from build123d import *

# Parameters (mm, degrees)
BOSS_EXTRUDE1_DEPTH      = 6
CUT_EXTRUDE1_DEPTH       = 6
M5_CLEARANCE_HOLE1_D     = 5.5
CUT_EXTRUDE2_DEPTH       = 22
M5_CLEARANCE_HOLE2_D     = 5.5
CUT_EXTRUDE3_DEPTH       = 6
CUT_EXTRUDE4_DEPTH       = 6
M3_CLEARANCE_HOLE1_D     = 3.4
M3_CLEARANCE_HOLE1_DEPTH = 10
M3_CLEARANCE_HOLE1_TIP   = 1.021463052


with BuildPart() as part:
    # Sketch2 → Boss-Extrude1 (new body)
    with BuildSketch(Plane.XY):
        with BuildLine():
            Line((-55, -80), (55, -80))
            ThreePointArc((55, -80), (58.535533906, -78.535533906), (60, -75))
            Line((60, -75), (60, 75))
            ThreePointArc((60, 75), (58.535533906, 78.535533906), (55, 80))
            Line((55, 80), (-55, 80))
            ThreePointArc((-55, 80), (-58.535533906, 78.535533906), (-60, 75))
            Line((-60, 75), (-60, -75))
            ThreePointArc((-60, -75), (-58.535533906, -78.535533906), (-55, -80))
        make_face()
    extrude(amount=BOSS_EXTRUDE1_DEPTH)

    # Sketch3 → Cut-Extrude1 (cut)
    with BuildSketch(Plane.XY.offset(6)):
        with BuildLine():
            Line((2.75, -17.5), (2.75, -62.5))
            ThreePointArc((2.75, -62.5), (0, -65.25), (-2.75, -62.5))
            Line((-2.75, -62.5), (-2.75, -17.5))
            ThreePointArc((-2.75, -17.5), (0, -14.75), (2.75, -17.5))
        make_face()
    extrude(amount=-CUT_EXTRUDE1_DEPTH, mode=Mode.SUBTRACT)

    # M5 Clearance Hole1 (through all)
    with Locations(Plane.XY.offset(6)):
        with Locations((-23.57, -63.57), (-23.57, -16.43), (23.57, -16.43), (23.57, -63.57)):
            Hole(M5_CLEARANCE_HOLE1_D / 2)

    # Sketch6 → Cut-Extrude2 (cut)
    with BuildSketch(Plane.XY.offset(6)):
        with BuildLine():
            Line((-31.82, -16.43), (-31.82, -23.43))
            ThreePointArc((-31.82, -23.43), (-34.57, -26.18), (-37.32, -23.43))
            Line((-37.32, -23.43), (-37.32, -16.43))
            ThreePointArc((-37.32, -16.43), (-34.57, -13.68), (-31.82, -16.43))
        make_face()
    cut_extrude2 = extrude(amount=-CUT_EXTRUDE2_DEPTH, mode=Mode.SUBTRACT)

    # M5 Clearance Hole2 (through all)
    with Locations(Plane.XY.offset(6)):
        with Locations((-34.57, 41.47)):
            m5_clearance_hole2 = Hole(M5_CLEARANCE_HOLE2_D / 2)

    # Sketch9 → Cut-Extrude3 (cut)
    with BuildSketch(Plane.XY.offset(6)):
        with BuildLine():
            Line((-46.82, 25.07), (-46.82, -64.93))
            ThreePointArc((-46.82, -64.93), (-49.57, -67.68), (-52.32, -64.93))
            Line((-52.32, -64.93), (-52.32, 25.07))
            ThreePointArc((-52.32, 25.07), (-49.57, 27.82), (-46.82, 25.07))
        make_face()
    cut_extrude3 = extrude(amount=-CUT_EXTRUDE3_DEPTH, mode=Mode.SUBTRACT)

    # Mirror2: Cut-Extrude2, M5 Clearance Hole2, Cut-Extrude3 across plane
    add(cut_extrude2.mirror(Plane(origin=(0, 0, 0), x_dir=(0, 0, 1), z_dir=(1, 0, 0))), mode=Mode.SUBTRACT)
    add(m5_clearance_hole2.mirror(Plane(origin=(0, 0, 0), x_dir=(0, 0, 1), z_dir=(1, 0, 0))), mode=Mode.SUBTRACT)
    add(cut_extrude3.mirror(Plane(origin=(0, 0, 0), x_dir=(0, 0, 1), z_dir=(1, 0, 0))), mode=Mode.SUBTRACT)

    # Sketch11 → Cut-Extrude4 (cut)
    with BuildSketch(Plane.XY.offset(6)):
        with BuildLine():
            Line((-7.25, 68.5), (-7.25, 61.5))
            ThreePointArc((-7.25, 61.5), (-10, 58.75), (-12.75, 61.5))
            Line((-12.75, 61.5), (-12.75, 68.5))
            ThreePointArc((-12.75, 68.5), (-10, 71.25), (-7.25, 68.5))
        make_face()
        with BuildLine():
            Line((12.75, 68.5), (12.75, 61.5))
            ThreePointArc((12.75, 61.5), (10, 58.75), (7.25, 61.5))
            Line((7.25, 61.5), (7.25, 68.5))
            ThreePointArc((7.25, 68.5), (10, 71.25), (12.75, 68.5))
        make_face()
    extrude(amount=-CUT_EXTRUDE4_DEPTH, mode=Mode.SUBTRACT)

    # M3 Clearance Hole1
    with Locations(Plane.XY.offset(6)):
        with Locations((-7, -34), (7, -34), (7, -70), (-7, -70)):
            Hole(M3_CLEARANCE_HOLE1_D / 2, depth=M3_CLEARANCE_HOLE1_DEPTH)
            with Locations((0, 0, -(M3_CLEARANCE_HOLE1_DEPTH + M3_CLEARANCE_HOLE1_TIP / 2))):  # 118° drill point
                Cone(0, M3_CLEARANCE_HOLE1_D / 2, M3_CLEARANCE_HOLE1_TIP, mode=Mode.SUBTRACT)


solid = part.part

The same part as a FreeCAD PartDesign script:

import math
import FreeCAD as App
import Part
import Sketcher

V = App.Vector

doc = App.newDocument("Part")
body = doc.addObject("PartDesign::Body", "Body")

# Sketch on XY plane
sketch1 = doc.addObject("Sketcher::SketchObject", "Sketch")
body.addObject(sketch1)
sketch1.AttachmentSupport = (doc.XY_Plane, [""])
sketch1.MapMode = "FlatFace"
sketch1.addGeometry([
    Part.LineSegment(V(-55, -80, 0), V(55, -80, 0)),  # 0
    Part.ArcOfCircle(Part.Circle(V(55, -75, 0), V(0, 0, 1), 5), math.radians(-90), math.radians(0)),  # 1
    Part.LineSegment(V(60, -75, 0), V(60, 75, 0)),  # 2
    Part.ArcOfCircle(Part.Circle(V(55, 75, 0), V(0, 0, 1), 5), math.radians(0), math.radians(90)),  # 3
    Part.LineSegment(V(55, 80, 0), V(-55, 80, 0)),  # 4
    Part.ArcOfCircle(Part.Circle(V(-55, 75, 0), V(0, 0, 1), 5), math.radians(90), math.radians(180)),  # 5
    Part.LineSegment(V(-60, 75, 0), V(-60, -75, 0)),  # 6
    Part.ArcOfCircle(Part.Circle(V(-55, -75, 0), V(0, 0, 1), 5), math.radians(180), math.radians(270)),  # 7
], False)
sketch1.addConstraint([
    Sketcher.Constraint("Tangent", 0, 2, 1, 1),
    Sketcher.Constraint("Tangent", 1, 2, 2, 1),
    Sketcher.Constraint("Tangent", 2, 2, 3, 1),
    Sketcher.Constraint("Tangent", 3, 2, 4, 1),
    Sketcher.Constraint("Tangent", 4, 2, 5, 1),
    Sketcher.Constraint("Tangent", 5, 2, 6, 1),
    Sketcher.Constraint("Tangent", 6, 2, 7, 1),
    Sketcher.Constraint("Tangent", 7, 2, 0, 1),
    Sketcher.Constraint("Horizontal", 0),
    Sketcher.Constraint("Vertical", 2),
    Sketcher.Constraint("Horizontal", 4),
    Sketcher.Constraint("Vertical", 6),
    Sketcher.Constraint("Equal", 1, 3),
    Sketcher.Constraint("Equal", 3, 5),
    Sketcher.Constraint("Equal", 5, 7),
    Sketcher.Constraint("Symmetric", 1, 3, 5, 3, -1, 1),
    Sketcher.Constraint("Radius", 1, 5.0),
    Sketcher.Constraint("DistanceX", 0, 1, 0, 2, 110.0),
    Sketcher.Constraint("DistanceY", 2, 1, 2, 2, 150.0),
])
pad1 = doc.addObject("PartDesign::Pad", "Pad")
body.addObject(pad1)
pad1.Profile = sketch1
pad1.Length = 6

# Sketch on XY plane
sketch2 = doc.addObject("Sketcher::SketchObject", "Sketch001")
body.addObject(sketch2)
sketch2.AttachmentSupport = (doc.XY_Plane, [""])
sketch2.MapMode = "FlatFace"
sketch2.AttachmentOffset = App.Placement(V(0, 0, 6), App.Rotation())
sketch2.addGeometry([
    Part.LineSegment(V(2.75, -62.5, 0), V(2.75, -17.5, 0)),
    Part.ArcOfCircle(Part.Circle(V(0, -17.5, 0), V(0, 0, 1), 2.75), math.radians(0), math.radians(180)),
    Part.LineSegment(V(-2.75, -17.5, 0), V(-2.75, -62.5, 0)),
    Part.ArcOfCircle(Part.Circle(V(0, -62.5, 0), V(0, 0, 1), 2.75), math.radians(180), math.radians(360)),
], False)
sketch2.addConstraint([
    Sketcher.Constraint("Tangent", 0, 2, 1, 1),
    Sketcher.Constraint("Tangent", 1, 2, 2, 1),
    Sketcher.Constraint("Tangent", 2, 2, 3, 1),
    Sketcher.Constraint("Tangent", 3, 2, 0, 1),
    Sketcher.Constraint("Vertical", 0),
    Sketcher.Constraint("Vertical", 2),
    Sketcher.Constraint("PointOnObject", 1, 3, -2),
    Sketcher.Constraint("DistanceY", 0, 1, 0, 2, 45.0),
    Sketcher.Constraint("Radius", 1, 2.75),
    Sketcher.Constraint("DistanceY", 1, 3, -1, 1, 17.5),
])
pocket1 = doc.addObject("PartDesign::Pocket", "Pocket")
body.addObject(pocket1)
pocket1.Profile = sketch2
pocket1.Length = 6

# Sketch on XY plane
sketch3 = doc.addObject("Sketcher::SketchObject", "Sketch002")
body.addObject(sketch3)
sketch3.AttachmentSupport = (doc.XY_Plane, [""])
sketch3.MapMode = "FlatFace"
sketch3.AttachmentOffset = App.Placement(V(0, 0, 6), App.Rotation())
sketch3.addGeometry([
    Part.Circle(V(-23.57, -63.57, 0), V(0, 0, 1), 2.75),
    Part.Circle(V(-23.57, -16.43, 0), V(0, 0, 1), 2.75),
    Part.Circle(V(23.57, -16.43, 0), V(0, 0, 1), 2.75),
    Part.Circle(V(23.57, -63.57, 0), V(0, 0, 1), 2.75),
], False)
sketch3.addConstraint([
    Sketcher.Constraint("Equal", 0, 1),
    Sketcher.Constraint("Equal", 1, 2),
    Sketcher.Constraint("Equal", 2, 3),
    Sketcher.Constraint("Symmetric", 1, 3, 2, 3, -2),
    Sketcher.Constraint("Symmetric", 0, 3, 3, 3, -2),
    Sketcher.Constraint("Vertical", 0, 3, 1, 3),
    Sketcher.Constraint("Diameter", 0, 5.5),
    Sketcher.Constraint("DistanceX", 0, 3, -1, 1, 23.57),
    Sketcher.Constraint("DistanceY", 0, 3, -1, 1, 63.57),
    Sketcher.Constraint("DistanceY", 1, 3, -1, 1, 16.43),
])
doc.recompute()
hole = doc.addObject("PartDesign::Hole", "Hole")
body.addObject(hole)
hole.Profile = sketch3
hole.ThreadType = "None"
hole.Diameter = 5.5
hole.DepthType = "ThroughAll"

# Sketch on XY plane
sketch4 = doc.addObject("Sketcher::SketchObject", "Sketch003")
body.addObject(sketch4)
sketch4.AttachmentSupport = (doc.XY_Plane, [""])
sketch4.MapMode = "FlatFace"
sketch4.AttachmentOffset = App.Placement(V(0, 0, 6), App.Rotation())
sketch4.addGeometry([
    Part.LineSegment(V(-31.82, -23.43, 0), V(-31.82, -16.43, 0)),
    Part.ArcOfCircle(Part.Circle(V(-34.57, -16.43, 0), V(0, 0, 1), 2.75), math.radians(0), math.radians(180)),
    Part.LineSegment(V(-37.32, -16.43, 0), V(-37.32, -23.43, 0)),
    Part.ArcOfCircle(Part.Circle(V(-34.57, -23.43, 0), V(0, 0, 1), 2.75), math.radians(180), math.radians(360)),
], False)
sketch4.addConstraint([
    Sketcher.Constraint("Tangent", 0, 2, 1, 1),
    Sketcher.Constraint("Tangent", 1, 2, 2, 1),
    Sketcher.Constraint("Tangent", 2, 2, 3, 1),
    Sketcher.Constraint("Tangent", 3, 2, 0, 1),
    Sketcher.Constraint("Vertical", 0),
    Sketcher.Constraint("Vertical", 2),
    Sketcher.Constraint("DistanceY", 0, 1, 0, 2, 7.0),
    Sketcher.Constraint("Radius", 1, 2.75),
    Sketcher.Constraint("DistanceX", 1, 3, -1, 1, 34.57),
    Sketcher.Constraint("DistanceY", 1, 3, -1, 1, 16.43),
])
pocket2 = doc.addObject("PartDesign::Pocket", "Pocket001")
body.addObject(pocket2)
pocket2.Profile = sketch4
pocket2.Length = 22

# Sketch on XY plane
sketch5 = doc.addObject("Sketcher::SketchObject", "Sketch004")
body.addObject(sketch5)
sketch5.AttachmentSupport = (doc.XY_Plane, [""])
sketch5.MapMode = "FlatFace"
sketch5.AttachmentOffset = App.Placement(V(0, 0, 6), App.Rotation())
sketch5.addGeometry(Part.Circle(V(-34.57, 41.47, 0), V(0, 0, 1), 2.75), False)
sketch5.addConstraint([
    Sketcher.Constraint("Diameter", 0, 5.5),
    Sketcher.Constraint("DistanceX", 0, 3, -1, 1, 34.57),
    Sketcher.Constraint("DistanceY", -1, 1, 0, 3, 41.47),
])
doc.recompute()
hole2 = doc.addObject("PartDesign::Hole", "Hole001")
body.addObject(hole2)
hole2.Profile = sketch5
hole2.ThreadType = "None"
hole2.Diameter = 5.5
hole2.DepthType = "ThroughAll"

# Sketch on XY plane
sketch6 = doc.addObject("Sketcher::SketchObject", "Sketch005")
body.addObject(sketch6)
sketch6.AttachmentSupport = (doc.XY_Plane, [""])
sketch6.MapMode = "FlatFace"
sketch6.AttachmentOffset = App.Placement(V(0, 0, 6), App.Rotation())
sketch6.addGeometry([
    Part.LineSegment(V(-46.82, -64.93, 0), V(-46.82, 25.07, 0)),
    Part.ArcOfCircle(Part.Circle(V(-49.57, 25.07, 0), V(0, 0, 1), 2.75), math.radians(0), math.radians(180)),
    Part.LineSegment(V(-52.32, 25.07, 0), V(-52.32, -64.93, 0)),
    Part.ArcOfCircle(Part.Circle(V(-49.57, -64.93, 0), V(0, 0, 1), 2.75), math.radians(180), math.radians(360)),
], False)
sketch6.addConstraint([
    Sketcher.Constraint("Tangent", 0, 2, 1, 1),
    Sketcher.Constraint("Tangent", 1, 2, 2, 1),
    Sketcher.Constraint("Tangent", 2, 2, 3, 1),
    Sketcher.Constraint("Tangent", 3, 2, 0, 1),
    Sketcher.Constraint("Vertical", 0),
    Sketcher.Constraint("Vertical", 2),
    Sketcher.Constraint("DistanceY", 0, 1, 0, 2, 90.0),
    Sketcher.Constraint("Radius", 1, 2.75),
    Sketcher.Constraint("DistanceX", 1, 3, -1, 1, 49.57),
    Sketcher.Constraint("DistanceY", -1, 1, 1, 3, 25.07),
])
pocket3 = doc.addObject("PartDesign::Pocket", "Pocket002")
body.addObject(pocket3)
pocket3.Profile = sketch6
pocket3.Length = 6
doc.recompute()

mirrored = doc.addObject("PartDesign::Mirrored", "Mirrored")
body.addObject(mirrored)
mirrored.Originals = [pocket2, hole2, pocket3]
mirrored.MirrorPlane = (doc.YZ_Plane, [""])
body.Tip = mirrored

# Sketch on XY plane
sketch7 = doc.addObject("Sketcher::SketchObject", "Sketch006")
body.addObject(sketch7)
sketch7.AttachmentSupport = (doc.XY_Plane, [""])
sketch7.MapMode = "FlatFace"
sketch7.AttachmentOffset = App.Placement(V(0, 0, 6), App.Rotation())
sketch7.addGeometry([
    Part.LineSegment(V(-7.25, 61.5, 0), V(-7.25, 68.5, 0)),  # 0
    Part.ArcOfCircle(Part.Circle(V(-10, 68.5, 0), V(0, 0, 1), 2.75), math.radians(0), math.radians(180)),  # 1
    Part.LineSegment(V(-12.75, 68.5, 0), V(-12.75, 61.5, 0)),  # 2
    Part.ArcOfCircle(Part.Circle(V(-10, 61.5, 0), V(0, 0, 1), 2.75), math.radians(180), math.radians(360)),  # 3
    Part.LineSegment(V(12.75, 61.5, 0), V(12.75, 68.5, 0)),  # 4
    Part.ArcOfCircle(Part.Circle(V(10, 68.5, 0), V(0, 0, 1), 2.75), math.radians(0), math.radians(180)),  # 5
    Part.LineSegment(V(7.25, 68.5, 0), V(7.25, 61.5, 0)),  # 6
    Part.ArcOfCircle(Part.Circle(V(10, 61.5, 0), V(0, 0, 1), 2.75), math.radians(180), math.radians(360)),  # 7
], False)
sketch7.addConstraint([
    Sketcher.Constraint("Tangent", 0, 2, 1, 1),
    Sketcher.Constraint("Tangent", 1, 2, 2, 1),
    Sketcher.Constraint("Tangent", 2, 2, 3, 1),
    Sketcher.Constraint("Tangent", 3, 2, 0, 1),
    Sketcher.Constraint("Tangent", 4, 2, 5, 1),
    Sketcher.Constraint("Tangent", 5, 2, 6, 1),
    Sketcher.Constraint("Tangent", 6, 2, 7, 1),
    Sketcher.Constraint("Tangent", 7, 2, 4, 1),
    Sketcher.Constraint("Vertical", 0),
    Sketcher.Constraint("Vertical", 2),
    Sketcher.Constraint("Vertical", 4),
    Sketcher.Constraint("Vertical", 6),
    Sketcher.Constraint("Equal", 3, 5),
    Sketcher.Constraint("Symmetric", 1, 3, 5, 3, -2),
    Sketcher.Constraint("Horizontal", 3, 3, 7, 3),
    Sketcher.Constraint("DistanceY", 0, 1, 0, 2, 7.0),
    Sketcher.Constraint("Radius", 1, 2.75),
    Sketcher.Constraint("DistanceX", 1, 3, -1, 1, 10.0),
    Sketcher.Constraint("DistanceY", -1, 1, 1, 3, 68.5),
])
pocket4 = doc.addObject("PartDesign::Pocket", "Pocket003")
body.addObject(pocket4)
pocket4.Profile = sketch7
pocket4.Length = 6

# Sketch on XY plane
sketch8 = doc.addObject("Sketcher::SketchObject", "Sketch007")
body.addObject(sketch8)
sketch8.AttachmentSupport = (doc.XY_Plane, [""])
sketch8.MapMode = "FlatFace"
sketch8.AttachmentOffset = App.Placement(V(0, 0, 6), App.Rotation())
sketch8.addGeometry([
    Part.Circle(V(-7, -34, 0), V(0, 0, 1), 1.7),
    Part.Circle(V(7, -34, 0), V(0, 0, 1), 1.7),
    Part.Circle(V(7, -70, 0), V(0, 0, 1), 1.7),
    Part.Circle(V(-7, -70, 0), V(0, 0, 1), 1.7),
], False)
sketch8.addConstraint([
    Sketcher.Constraint("Equal", 0, 1),
    Sketcher.Constraint("Equal", 1, 2),
    Sketcher.Constraint("Equal", 2, 3),
    Sketcher.Constraint("Symmetric", 0, 3, 1, 3, -2),
    Sketcher.Constraint("Symmetric", 2, 3, 3, 3, -2),
    Sketcher.Constraint("Vertical", 1, 3, 2, 3),
    Sketcher.Constraint("Diameter", 0, 3.4),
    Sketcher.Constraint("DistanceX", 0, 3, -1, 1, 7.0),
    Sketcher.Constraint("DistanceY", 0, 3, -1, 1, 34.0),
    Sketcher.Constraint("DistanceY", 2, 3, -1, 1, 70.0),
])
doc.recompute()
hole3 = doc.addObject("PartDesign::Hole", "Hole002")
body.addObject(hole3)
hole3.Profile = sketch8
hole3.ThreadType = "None"
hole3.Diameter = 3.4
hole3.DepthType = "Dimension"
hole3.Depth = 10
hole3.DrillPoint = "Angled"
hole3.DrillPointAngle = 118

doc.recompute()
